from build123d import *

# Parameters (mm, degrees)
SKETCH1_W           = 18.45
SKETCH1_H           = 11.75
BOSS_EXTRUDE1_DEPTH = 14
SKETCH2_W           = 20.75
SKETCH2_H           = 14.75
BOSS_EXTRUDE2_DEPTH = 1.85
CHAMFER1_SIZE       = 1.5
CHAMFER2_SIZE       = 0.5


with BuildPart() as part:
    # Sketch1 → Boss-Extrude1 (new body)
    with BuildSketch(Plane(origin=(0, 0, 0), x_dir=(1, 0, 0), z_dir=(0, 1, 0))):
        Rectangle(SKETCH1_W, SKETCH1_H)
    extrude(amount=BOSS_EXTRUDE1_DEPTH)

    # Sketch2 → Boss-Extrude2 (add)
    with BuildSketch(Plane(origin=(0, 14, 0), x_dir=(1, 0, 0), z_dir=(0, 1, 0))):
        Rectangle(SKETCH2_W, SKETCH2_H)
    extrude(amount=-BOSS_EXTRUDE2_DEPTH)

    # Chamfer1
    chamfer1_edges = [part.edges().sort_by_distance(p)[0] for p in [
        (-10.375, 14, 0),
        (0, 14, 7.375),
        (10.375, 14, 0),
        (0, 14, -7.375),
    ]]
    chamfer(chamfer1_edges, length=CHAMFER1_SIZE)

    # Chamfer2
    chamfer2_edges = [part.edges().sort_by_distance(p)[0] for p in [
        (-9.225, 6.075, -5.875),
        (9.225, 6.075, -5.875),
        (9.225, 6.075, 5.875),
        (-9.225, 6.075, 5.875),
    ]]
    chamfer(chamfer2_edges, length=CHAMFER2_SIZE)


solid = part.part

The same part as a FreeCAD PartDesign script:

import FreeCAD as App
import Part
import Sketcher
Q = App.Units.Quantity


def edges_at(feature, points):
    """Names of the edges that pass closest to the given points."""
    edges = feature.Shape.Edges
    near = lambda p: min(range(len(edges)), key=lambda i: edges[i].distToShape(Part.Vertex(*p))[0])
    return sorted({f"Edge{near(p) + 1}" for p in points})

doc = App.newDocument("Part")
body = doc.addObject("PartDesign::Body", "Body")

sketch1 = body.newObject("Sketcher::SketchObject", "Sketch")
sketch1.AttachmentSupport = (doc.getObject("XZ_Plane"), [""])
sketch1.MapMode = "FlatFace"
sketch1.addGeometry([
    Part.LineSegment(App.Vector(-9, -6, 0), App.Vector(-9, 6, 0)),
    Part.LineSegment(App.Vector(-9, 6, 0), App.Vector(9, 6, 0)),
    Part.LineSegment(App.Vector(9, 6, 0), App.Vector(9, -6, 0)),
    Part.LineSegment(App.Vector(9, -6, 0), App.Vector(-9, -6, 0)),
], False)
sketch1.addConstraint([
    Sketcher.Constraint("Coincident", 0, 2, 1, 1),
    Sketcher.Constraint("Coincident", 1, 2, 2, 1),
    Sketcher.Constraint("Coincident", 2, 2, 3, 1),
    Sketcher.Constraint("Coincident", 3, 2, 0, 1),
    Sketcher.Constraint("Vertical", 0),
    Sketcher.Constraint("Horizontal", 1),
    Sketcher.Constraint("Vertical", 2),
    Sketcher.Constraint("Horizontal", 3),
    Sketcher.Constraint("Symmetric", 0, 2, 2, 2, -1, 1),
    Sketcher.Constraint("DistanceX", 1, 1, 1, 2, Q("18.45 mm")),
    Sketcher.Constraint("DistanceY", 0, 1, 0, 2, Q("11.75 mm")),
])
pad1 = body.newObject("PartDesign::Pad", "Pad")
pad1.Profile = sketch1
pad1.Length = 14
pad1.Reversed = True

sketch2 = body.newObject("Sketcher::SketchObject", "Sketch001")
sketch2.AttachmentSupport = (doc.getObject("XZ_Plane"), [""])
sketch2.MapMode = "FlatFace"
sketch2.AttachmentOffset = App.Placement(App.Vector(0, 0, -14), App.Rotation())
sketch2.addGeometry([
    Part.LineSegment(App.Vector(-10, -7, 0), App.Vector(-10, 7, 0)),
    Part.LineSegment(App.Vector(-10, 7, 0), App.Vector(10, 7, 0)),
    Part.LineSegment(App.Vector(10, 7, 0), App.Vector(10, -7, 0)),
    Part.LineSegment(App.Vector(10, -7, 0), App.Vector(-10, -7, 0)),
], False)
sketch2.addConstraint([
    Sketcher.Constraint("Coincident", 0, 2, 1, 1),
    Sketcher.Constraint("Coincident", 1, 2, 2, 1),
    Sketcher.Constraint("Coincident", 2, 2, 3, 1),
    Sketcher.Constraint("Coincident", 3, 2, 0, 1),
    Sketcher.Constraint("Vertical", 0),
    Sketcher.Constraint("Horizontal", 1),
    Sketcher.Constraint("Vertical", 2),
    Sketcher.Constraint("Horizontal", 3),
    Sketcher.Constraint("Symmetric", 0, 2, 2, 2, -1, 1),
    Sketcher.Constraint("DistanceX", 1, 1, 1, 2, Q("20.75 mm")),
    Sketcher.Constraint("DistanceY", 0, 1, 0, 2, Q("14.75 mm")),
])
pad2 = body.newObject("PartDesign::Pad", "Pad001")
pad2.Profile = sketch2
pad2.Length = 1.85
doc.recompute()

chamfer = body.newObject("PartDesign::Chamfer", "Chamfer")
chamfer.Base = (pad2, edges_at(pad2, [
    (-10.375, 14, 0),
    (0, 14, 7.375),
    (10.375, 14, 0),
    (0, 14, -7.375),
]))
chamfer.Size = 1.5
doc.recompute()

chamfer2 = body.newObject("PartDesign::Chamfer", "Chamfer001")
chamfer2.Base = (chamfer, edges_at(chamfer, [
    (-9.225, 6.075, -5.875),
    (9.225, 6.075, -5.875),
    (9.225, 6.075, 5.875),
    (-9.225, 6.075, 5.875),
]))
chamfer2.Size = 0.5

doc.recompute()
